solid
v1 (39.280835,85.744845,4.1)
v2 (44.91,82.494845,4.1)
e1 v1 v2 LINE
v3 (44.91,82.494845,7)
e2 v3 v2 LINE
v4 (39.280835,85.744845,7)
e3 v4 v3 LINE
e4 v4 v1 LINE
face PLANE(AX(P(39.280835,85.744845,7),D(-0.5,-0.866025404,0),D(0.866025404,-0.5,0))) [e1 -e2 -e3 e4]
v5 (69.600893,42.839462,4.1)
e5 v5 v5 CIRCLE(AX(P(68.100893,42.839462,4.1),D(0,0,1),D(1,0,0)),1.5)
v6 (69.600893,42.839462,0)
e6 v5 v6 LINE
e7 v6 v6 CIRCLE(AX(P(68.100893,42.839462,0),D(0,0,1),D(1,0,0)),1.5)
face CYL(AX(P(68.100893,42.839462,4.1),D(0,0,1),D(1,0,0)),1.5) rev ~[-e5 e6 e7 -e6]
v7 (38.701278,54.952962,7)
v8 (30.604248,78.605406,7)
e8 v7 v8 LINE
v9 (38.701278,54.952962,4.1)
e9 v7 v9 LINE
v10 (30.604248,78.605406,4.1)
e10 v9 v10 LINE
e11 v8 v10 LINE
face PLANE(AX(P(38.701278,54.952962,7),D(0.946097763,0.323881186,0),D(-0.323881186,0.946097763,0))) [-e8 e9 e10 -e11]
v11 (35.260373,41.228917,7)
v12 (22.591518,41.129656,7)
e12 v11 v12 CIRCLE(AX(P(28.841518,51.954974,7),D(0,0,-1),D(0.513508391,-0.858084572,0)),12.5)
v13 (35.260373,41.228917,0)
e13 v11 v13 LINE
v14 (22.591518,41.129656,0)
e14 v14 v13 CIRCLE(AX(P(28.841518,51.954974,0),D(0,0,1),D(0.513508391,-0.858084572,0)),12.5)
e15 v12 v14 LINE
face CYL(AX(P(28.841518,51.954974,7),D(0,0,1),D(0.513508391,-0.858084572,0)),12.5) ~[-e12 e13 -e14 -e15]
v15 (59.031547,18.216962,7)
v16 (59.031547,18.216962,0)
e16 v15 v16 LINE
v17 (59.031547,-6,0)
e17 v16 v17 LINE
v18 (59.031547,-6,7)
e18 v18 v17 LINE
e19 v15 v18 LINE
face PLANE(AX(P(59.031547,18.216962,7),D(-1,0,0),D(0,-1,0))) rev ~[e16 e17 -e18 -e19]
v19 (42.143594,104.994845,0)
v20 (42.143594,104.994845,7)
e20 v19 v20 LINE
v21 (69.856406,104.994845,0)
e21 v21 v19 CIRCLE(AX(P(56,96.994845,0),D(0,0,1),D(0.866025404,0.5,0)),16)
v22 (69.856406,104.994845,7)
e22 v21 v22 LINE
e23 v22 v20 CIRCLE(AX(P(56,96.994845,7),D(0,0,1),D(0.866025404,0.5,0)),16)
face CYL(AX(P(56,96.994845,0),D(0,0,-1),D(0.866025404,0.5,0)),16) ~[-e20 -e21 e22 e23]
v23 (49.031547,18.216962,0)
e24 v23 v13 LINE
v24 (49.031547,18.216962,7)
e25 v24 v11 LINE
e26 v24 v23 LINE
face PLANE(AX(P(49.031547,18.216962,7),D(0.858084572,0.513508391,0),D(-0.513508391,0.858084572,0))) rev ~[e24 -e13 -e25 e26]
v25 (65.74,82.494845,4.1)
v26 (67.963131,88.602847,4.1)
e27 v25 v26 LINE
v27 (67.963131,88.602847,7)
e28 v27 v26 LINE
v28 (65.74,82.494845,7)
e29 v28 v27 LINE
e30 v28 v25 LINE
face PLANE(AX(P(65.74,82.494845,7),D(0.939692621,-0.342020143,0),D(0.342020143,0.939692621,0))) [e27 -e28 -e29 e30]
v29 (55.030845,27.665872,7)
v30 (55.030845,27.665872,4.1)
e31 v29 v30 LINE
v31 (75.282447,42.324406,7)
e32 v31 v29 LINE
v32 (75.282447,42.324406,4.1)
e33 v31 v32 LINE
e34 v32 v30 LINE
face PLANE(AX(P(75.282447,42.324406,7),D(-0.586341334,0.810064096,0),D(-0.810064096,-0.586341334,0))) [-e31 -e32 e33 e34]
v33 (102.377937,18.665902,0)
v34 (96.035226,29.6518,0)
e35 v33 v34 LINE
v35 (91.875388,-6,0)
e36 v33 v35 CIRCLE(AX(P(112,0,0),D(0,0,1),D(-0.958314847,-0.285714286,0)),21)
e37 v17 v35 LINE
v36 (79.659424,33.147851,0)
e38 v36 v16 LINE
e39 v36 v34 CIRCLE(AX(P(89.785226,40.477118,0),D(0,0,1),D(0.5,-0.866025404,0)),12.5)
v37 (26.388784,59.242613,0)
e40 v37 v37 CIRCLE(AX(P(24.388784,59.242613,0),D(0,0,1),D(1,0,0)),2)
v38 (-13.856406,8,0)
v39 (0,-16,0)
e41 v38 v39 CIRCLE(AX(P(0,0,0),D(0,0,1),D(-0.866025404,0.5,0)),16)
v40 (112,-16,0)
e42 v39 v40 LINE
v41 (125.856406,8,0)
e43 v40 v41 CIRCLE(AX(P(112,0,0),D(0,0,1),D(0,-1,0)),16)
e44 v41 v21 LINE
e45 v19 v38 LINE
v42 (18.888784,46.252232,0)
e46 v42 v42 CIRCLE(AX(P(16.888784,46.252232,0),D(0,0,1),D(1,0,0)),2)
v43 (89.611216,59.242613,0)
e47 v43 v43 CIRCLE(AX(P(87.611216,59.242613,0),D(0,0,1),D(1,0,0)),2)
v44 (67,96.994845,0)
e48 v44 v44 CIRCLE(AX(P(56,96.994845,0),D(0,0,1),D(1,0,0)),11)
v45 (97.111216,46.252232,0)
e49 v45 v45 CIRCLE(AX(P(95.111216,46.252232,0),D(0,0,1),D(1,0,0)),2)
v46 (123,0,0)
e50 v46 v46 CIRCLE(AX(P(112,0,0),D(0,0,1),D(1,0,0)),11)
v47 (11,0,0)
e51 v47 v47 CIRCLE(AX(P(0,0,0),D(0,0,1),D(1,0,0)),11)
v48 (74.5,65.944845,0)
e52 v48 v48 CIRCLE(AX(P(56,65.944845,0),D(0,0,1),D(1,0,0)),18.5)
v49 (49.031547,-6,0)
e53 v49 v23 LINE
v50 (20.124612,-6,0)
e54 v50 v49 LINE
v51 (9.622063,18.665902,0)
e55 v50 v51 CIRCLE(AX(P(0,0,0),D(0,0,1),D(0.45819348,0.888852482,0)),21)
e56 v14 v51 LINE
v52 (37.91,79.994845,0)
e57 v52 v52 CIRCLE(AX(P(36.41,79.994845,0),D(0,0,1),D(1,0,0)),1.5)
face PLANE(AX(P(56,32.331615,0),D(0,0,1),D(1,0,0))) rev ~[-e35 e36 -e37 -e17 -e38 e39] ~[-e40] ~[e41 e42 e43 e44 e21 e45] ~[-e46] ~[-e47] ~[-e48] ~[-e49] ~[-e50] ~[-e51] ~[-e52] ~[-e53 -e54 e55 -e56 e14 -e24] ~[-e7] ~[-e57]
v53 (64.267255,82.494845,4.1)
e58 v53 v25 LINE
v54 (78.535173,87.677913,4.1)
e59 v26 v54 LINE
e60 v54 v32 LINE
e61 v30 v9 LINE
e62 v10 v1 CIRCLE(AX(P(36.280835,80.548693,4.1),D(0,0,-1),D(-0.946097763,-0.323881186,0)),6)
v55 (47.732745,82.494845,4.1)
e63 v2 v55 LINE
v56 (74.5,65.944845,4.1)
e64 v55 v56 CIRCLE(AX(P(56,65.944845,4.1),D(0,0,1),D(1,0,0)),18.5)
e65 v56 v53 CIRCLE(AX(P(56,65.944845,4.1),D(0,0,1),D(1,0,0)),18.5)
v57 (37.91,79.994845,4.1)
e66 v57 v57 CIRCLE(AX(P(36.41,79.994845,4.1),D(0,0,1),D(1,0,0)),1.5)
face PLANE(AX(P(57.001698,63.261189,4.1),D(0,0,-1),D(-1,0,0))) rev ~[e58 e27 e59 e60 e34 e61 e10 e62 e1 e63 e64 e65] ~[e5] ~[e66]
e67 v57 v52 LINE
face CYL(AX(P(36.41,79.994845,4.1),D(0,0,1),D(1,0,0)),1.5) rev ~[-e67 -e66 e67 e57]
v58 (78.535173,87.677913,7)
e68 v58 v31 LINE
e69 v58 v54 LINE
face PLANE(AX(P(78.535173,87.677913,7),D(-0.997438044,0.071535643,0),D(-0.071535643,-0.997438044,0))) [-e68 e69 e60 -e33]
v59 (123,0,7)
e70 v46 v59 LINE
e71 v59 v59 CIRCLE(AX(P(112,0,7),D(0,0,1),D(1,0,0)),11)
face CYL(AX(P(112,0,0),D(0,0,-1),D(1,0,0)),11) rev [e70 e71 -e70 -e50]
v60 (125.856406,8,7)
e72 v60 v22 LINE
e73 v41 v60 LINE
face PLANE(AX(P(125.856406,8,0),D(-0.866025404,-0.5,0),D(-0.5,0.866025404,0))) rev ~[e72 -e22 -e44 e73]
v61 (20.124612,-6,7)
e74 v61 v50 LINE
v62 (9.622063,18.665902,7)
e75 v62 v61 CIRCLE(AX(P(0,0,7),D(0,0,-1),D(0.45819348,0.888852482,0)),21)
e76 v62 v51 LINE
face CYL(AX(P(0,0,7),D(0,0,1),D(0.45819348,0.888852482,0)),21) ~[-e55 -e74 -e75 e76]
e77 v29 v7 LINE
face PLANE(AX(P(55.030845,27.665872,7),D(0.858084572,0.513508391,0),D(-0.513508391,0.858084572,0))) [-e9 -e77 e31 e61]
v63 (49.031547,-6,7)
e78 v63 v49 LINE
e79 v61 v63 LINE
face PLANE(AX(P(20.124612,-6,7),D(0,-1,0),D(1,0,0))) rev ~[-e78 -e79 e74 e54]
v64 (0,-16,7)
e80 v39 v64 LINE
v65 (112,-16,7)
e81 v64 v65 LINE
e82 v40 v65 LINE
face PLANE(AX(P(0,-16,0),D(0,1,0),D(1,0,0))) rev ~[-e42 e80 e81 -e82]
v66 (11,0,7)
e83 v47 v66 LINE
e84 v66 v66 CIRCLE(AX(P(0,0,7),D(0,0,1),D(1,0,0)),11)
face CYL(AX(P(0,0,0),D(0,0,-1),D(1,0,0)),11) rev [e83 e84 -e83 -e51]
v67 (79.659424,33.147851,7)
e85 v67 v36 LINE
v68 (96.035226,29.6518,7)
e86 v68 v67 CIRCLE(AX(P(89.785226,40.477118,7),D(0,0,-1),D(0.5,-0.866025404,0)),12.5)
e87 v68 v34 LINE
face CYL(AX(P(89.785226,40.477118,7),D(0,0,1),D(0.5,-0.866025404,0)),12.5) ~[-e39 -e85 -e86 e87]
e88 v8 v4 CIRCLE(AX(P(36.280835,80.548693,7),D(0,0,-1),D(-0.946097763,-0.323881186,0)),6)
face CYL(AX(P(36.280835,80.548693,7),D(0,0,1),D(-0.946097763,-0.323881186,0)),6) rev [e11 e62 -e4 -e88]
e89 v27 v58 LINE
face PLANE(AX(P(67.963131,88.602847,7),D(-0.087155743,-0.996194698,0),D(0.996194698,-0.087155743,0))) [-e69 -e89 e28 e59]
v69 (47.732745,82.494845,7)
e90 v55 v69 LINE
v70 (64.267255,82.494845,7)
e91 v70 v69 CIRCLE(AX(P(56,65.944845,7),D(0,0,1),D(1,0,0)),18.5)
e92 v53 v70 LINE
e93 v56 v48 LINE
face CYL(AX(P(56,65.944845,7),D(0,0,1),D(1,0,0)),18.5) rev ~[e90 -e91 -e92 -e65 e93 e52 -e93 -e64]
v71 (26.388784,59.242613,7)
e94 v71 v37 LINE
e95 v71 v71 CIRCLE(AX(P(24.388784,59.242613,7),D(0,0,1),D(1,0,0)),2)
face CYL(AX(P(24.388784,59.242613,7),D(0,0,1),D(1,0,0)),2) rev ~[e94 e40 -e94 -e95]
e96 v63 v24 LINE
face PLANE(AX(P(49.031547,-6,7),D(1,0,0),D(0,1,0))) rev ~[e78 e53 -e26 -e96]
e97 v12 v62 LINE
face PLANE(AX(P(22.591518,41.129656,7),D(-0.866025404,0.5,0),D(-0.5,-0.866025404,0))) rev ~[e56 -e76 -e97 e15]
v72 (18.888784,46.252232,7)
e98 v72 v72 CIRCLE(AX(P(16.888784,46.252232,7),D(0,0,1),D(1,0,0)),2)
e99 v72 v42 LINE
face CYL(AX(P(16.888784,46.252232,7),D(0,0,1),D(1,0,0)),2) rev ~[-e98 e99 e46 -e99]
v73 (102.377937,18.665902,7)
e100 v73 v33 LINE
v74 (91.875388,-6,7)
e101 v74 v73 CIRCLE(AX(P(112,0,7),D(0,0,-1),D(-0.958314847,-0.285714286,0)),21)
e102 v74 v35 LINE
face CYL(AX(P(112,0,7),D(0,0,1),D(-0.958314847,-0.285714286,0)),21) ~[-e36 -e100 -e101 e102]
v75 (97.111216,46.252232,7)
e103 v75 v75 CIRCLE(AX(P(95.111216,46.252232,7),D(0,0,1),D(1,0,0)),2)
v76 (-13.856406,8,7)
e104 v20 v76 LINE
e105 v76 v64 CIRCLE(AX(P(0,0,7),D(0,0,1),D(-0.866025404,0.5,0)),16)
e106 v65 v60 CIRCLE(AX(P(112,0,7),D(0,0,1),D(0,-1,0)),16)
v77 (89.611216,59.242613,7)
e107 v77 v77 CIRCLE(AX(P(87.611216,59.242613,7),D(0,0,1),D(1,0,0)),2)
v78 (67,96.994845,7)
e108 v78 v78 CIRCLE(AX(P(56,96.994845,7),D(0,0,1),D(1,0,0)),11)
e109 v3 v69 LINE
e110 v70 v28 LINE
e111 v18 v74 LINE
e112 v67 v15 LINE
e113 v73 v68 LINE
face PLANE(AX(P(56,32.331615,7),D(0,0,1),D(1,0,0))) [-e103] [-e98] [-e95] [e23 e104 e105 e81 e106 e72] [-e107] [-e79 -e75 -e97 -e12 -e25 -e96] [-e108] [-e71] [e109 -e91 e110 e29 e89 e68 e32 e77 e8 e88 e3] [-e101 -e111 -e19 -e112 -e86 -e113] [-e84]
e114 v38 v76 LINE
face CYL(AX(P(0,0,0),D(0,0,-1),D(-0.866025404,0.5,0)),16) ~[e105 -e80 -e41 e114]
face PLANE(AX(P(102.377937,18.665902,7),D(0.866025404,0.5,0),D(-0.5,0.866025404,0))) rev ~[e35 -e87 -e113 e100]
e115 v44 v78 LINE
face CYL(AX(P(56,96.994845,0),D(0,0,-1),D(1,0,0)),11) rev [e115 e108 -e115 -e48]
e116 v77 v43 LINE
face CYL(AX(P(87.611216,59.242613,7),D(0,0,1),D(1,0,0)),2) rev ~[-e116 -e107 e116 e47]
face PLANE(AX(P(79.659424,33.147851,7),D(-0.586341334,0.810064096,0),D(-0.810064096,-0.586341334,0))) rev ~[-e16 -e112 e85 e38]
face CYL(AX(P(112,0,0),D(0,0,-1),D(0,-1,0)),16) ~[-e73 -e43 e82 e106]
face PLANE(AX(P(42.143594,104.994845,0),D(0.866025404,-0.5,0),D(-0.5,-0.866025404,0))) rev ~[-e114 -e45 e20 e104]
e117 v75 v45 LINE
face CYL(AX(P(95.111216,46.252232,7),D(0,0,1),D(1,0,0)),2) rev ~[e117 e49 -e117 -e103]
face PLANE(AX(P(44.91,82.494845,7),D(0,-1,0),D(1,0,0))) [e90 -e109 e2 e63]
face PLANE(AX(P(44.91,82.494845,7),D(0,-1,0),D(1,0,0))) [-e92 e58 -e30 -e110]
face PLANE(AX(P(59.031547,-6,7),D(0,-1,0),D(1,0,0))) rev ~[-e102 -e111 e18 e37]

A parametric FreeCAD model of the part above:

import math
import FreeCAD as App
import Part
import Sketcher
Q = App.Units.Quantity

doc = App.newDocument("Part")
body = doc.addObject("PartDesign::Body", "Body")

sketch1 = body.newObject("Sketcher::SketchObject", "Sketch")
sketch1.AttachmentSupport = (doc.getObject("XY_Plane"), [""])
sketch1.MapMode = "FlatFace"
sketch1.addGeometry([
    Part.LineSegment(App.Vector(42.143594, 104.994845, 0), App.Vector(-13.856406, 8, 0)),
    Part.ArcOfCircle(Part.Circle(App.Vector(0, 0, 0), App.Vector(0, 0, 1), 16), math.radians(150), math.radians(270)),
    Part.LineSegment(App.Vector(0, -16, 0), App.Vector(112, -16, 0)),
    Part.ArcOfCircle(Part.Circle(App.Vector(112, 0, 0), App.Vector(0, 0, 1), 16), math.radians(-90), math.radians(30)),
    Part.LineSegment(App.Vector(125.856406, 8, 0), App.Vector(69.856406, 104.994845, 0)),
    Part.ArcOfCircle(Part.Circle(App.Vector(56, 96.994845, 0), App.Vector(0, 0, 1), 16), math.radians(30), math.radians(150)),
    Part.Circle(App.Vector(0, 0, 0), App.Vector(0, 0, 1), 11),
    Part.Circle(App.Vector(112, 0, 0), App.Vector(0, 0, 1), 11),
    Part.Circle(App.Vector(56, 96.994845, 0), App.Vector(0, 0, 1), 11),
], False)
sketch1.addConstraint([
    Sketcher.Constraint("Tangent", 0, 2, 1, 1),
    Sketcher.Constraint("Tangent", 1, 2, 2, 1),
    Sketcher.Constraint("Tangent", 2, 2, 3, 1),
    Sketcher.Constraint("Tangent", 3, 2, 4, 1),
    Sketcher.Constraint("Tangent", 4, 2, 5, 1),
    Sketcher.Constraint("Tangent", 5, 2, 0, 1),
    Sketcher.Constraint("Horizontal", 2),
    Sketcher.Constraint("Coincident", 1, 3, -1, 1),
    Sketcher.Constraint("Coincident", 6, 3, -1, 1),
    Sketcher.Constraint("Coincident", 7, 3, 3, 3),
    Sketcher.Constraint("Coincident", 8, 3, 5, 3),
    Sketcher.Constraint("Equal", 1, 3),
    Sketcher.Constraint("Equal", 3, 5),
    Sketcher.Constraint("Equal", 6, 7),
    Sketcher.Constraint("Equal", 7, 8),
    Sketcher.Constraint("Horizontal", 0, 2, 3, 2),
    Sketcher.Constraint("Diameter", 6, 22.0),
    Sketcher.Constraint("Radius", 1, 16.0),
    Sketcher.Constraint("DistanceX", 2, 1, 2, 2, 112.0),
    Sketcher.Constraint("Angle", 0, Q("-120 deg")),
])
pad1 = body.newObject("PartDesign::Pad", "Pad")
pad1.Profile = sketch1
pad1.Length = 7

sketch2 = body.newObject("Sketcher::SketchObject", "Sketch001")
sketch2.AttachmentSupport = (doc.getObject("XY_Plane"), [""])
sketch2.MapMode = "FlatFace"
sketch2.AttachmentOffset = App.Placement(App.Vector(0, 0, 7), App.Rotation())
sketch2.addGeometry(Part.Circle(App.Vector(56, 65.944845, 0), App.Vector(0, 0, 1), 18.5), False)
sketch2.addConstraint([
    Sketcher.Constraint("Diameter", 0, 37.0),
    Sketcher.Constraint("DistanceX", -1, 1, 0, 3, 56.0),
    Sketcher.Constraint("DistanceY", -1, 1, 0, 3, 65.944845),
])
pocket1 = body.newObject("PartDesign::Pocket", "Pocket")
pocket1.Profile = sketch2
pocket1.Type = "ThroughAll"

sketch3 = body.newObject("Sketcher::SketchObject", "Sketch002")
sketch3.AttachmentSupport = (doc.getObject("XY_Plane"), [""])
sketch3.MapMode = "FlatFace"
sketch3.AttachmentOffset = App.Placement(App.Vector(0, 0, 7), App.Rotation())
sketch3.addGeometry([
    Part.LineSegment(App.Vector(65.74, 82.494845, 0), App.Vector(44.91, 82.494845, 0)),
    Part.LineSegment(App.Vector(44.91, 82.494845, 0), App.Vector(39.280835, 85.744845, 0)),
    Part.ArcOfCircle(Part.Circle(App.Vector(36.280835, 80.548693, 0), App.Vector(0, 0, 1), 6), math.radians(60), math.radians(198.897806)),
    Part.LineSegment(App.Vector(30.604248, 78.605406, 0), App.Vector(38.701278, 54.952962, 0)),
    Part.LineSegment(App.Vector(38.701278, 54.952962, 0), App.Vector(55.030845, 27.665872, 0)),
    Part.LineSegment(App.Vector(55.030845, 27.665872, 0), App.Vector(75.282447, 42.324406, 0)),
    Part.LineSegment(App.Vector(75.282447, 42.324406, 0), App.Vector(78.535173, 87.677913, 0)),
    Part.LineSegment(App.Vector(78.535173, 87.677913, 0), App.Vector(67.963131, 88.602847, 0)),
    Part.LineSegment(App.Vector(67.963131, 88.602847, 0), App.Vector(65.74, 82.494845, 0)),
], False)
sketch3.addConstraint([
    Sketcher.Constraint("Coincident", 0, 2, 1, 1),
    Sketcher.Constraint("Coincident", 1, 2, 2, 1),
    Sketcher.Constraint("Coincident", 2, 2, 3, 1),
    Sketcher.Constraint("Coincident", 3, 2, 4, 1),
    Sketcher.Constraint("Coincident", 4, 2, 5, 1),
    Sketcher.Constraint("Coincident", 5, 2, 6, 1),
    Sketcher.Constraint("Coincident", 6, 2, 7, 1),
    Sketcher.Constraint("Coincident", 7, 2, 8, 1),
    Sketcher.Constraint("Coincident", 8, 2, 0, 1),
    Sketcher.Constraint("Horizontal", 0),
    Sketcher.Constraint("Radius", 2, 6.0),
    Sketcher.Constraint("Distance", 3, 25.0),
    Sketcher.Constraint("Distance", 5, 25.0),
    Sketcher.Constraint("DistanceX", 2, 3, 1, 2, 3.0),
    Sketcher.Constraint("Distance", 1, 6.5),
    Sketcher.Constraint("Distance", 4, 31.8),
    Sketcher.Constraint("Distance", 8, 6.5),
    Sketcher.Constraint("DistanceX", 0, 2, 0, 1, 20.83),
    Sketcher.Constraint("Distance", 6, 45.47),
    Sketcher.Constraint("DistanceX", -1, 1, 0, 2, 44.91),
    Sketcher.Constraint("DistanceY", 0, 2, 1, 2, 3.25),
    Sketcher.Constraint("DistanceX", -1, 1, 2, 2, 30.604248),
    Sketcher.Constraint("DistanceY", -1, 1, 3, 2, 54.952962),
    Sketcher.Constraint("DistanceX", -1, 1, 7, 2, 67.963131),
    Sketcher.Constraint("DistanceX", 2, 2, 3, 2, 8.09703),
    Sketcher.Constraint("DistanceY", 4, 2, 3, 2, 27.287089),
    Sketcher.Constraint("DistanceX", 3, 2, 5, 2, 36.581169),
    Sketcher.Constraint("DistanceY", 0, 2, 6, 2, 5.183068),
])
pocket2 = body.newObject("PartDesign::Pocket", "Pocket001")
pocket2.Profile = sketch3
pocket2.Length = 2.9

sketch4 = body.newObject("Sketcher::SketchObject", "Sketch003")
sketch4.AttachmentSupport = (doc.getObject("XY_Plane"), [""])
sketch4.MapMode = "FlatFace"
sketch4.AttachmentOffset = App.Placement(App.Vector(0, 0, 7), App.Rotation())
sketch4.addGeometry([
    Part.LineSegment(App.Vector(22.591518, 41.129656, 0), App.Vector(9.622063, 18.665902, 0)),
    Part.ArcOfCircle(Part.Circle(App.Vector(0, 0, 0), App.Vector(0, 0, 1), 21), math.radians(-16.60155), math.radians(62.729403)),
    Part.LineSegment(App.Vector(20.124612, -6, 0), App.Vector(49.031547, -6, 0)),
    Part.LineSegment(App.Vector(49.031547, -6, 0), App.Vector(49.031547, 18.216962, 0)),
    Part.LineSegment(App.Vector(49.031547, 18.216962, 0), App.Vector(35.260373, 41.228917, 0)),
    Part.ArcOfCircle(Part.Circle(App.Vector(28.841518, 51.954974, 0), App.Vector(0, 0, 1), 12.5), math.radians(-120), math.radians(-59.102194)),
    Part.LineSegment(App.Vector(59.031547, 18.216962, 0), App.Vector(59.031547, -6, 0)),
    Part.LineSegment(App.Vector(59.031547, -6, 0), App.Vector(91.875388, -6, 0)),
    Part.ArcOfCircle(Part.Circle(App.Vector(112, 0, 0), App.Vector(0, 0, 1), 21), math.radians(117.270597), math.radians(196.60155)),
    Part.LineSegment(App.Vector(102.377937, 18.665902, 0), App.Vector(96.035226, 29.6518, 0)),
    Part.ArcOfCircle(Part.Circle(App.Vector(89.785226, 40.477118, 0), App.Vector(0, 0, 1), 12.5), math.radians(-144.102194), math.radians(-60)),
    Part.LineSegment(App.Vector(79.659424, 33.147851, 0), App.Vector(59.031547, 18.216962, 0)),
], False)
sketch4.addConstraint([
    Sketcher.Constraint("Coincident", 0, 2, 1, 2),
    Sketcher.Constraint("Coincident", 1, 1, 2, 1),
    Sketcher.Constraint("Coincident", 2, 2, 3, 1),
    Sketcher.Constraint("Coincident", 3, 2, 4, 1),
    Sketcher.Constraint("Coincident", 4, 2, 5, 2),
    Sketcher.Constraint("Coincident", 5, 1, 0, 1),
    Sketcher.Constraint("Coincident", 6, 2, 7, 1),
    Sketcher.Constraint("Coincident", 7, 2, 8, 2),
    Sketcher.Constraint("Coincident", 8, 1, 9, 1),
    Sketcher.Constraint("Coincident", 9, 2, 10, 2),
    Sketcher.Constraint("Coincident", 10, 1, 11, 1),
    Sketcher.Constraint("Coincident", 11, 2, 6, 1),
    Sketcher.Constraint("Horizontal", 2),
    Sketcher.Constraint("Vertical", 3),
    Sketcher.Constraint("Vertical", 6),
    Sketcher.Constraint("Horizontal", 7),
    Sketcher.Constraint("Coincident", 1, 3, -1, 1),
    Sketcher.Constraint("Equal", 1, 8),
    Sketcher.Constraint("Equal", 5, 10),
    Sketcher.Constraint("PointOnObject", 8, 3, -1),
    Sketcher.Constraint("Horizontal", 2, 2, 6, 2),
    Sketcher.Constraint("Horizontal", 0, 2, 8, 1),
    Sketcher.Constraint("Horizontal", 3, 2, 11, 2),
    Sketcher.Constraint("Radius", 1, 21.0),
    Sketcher.Constraint("Radius", 5, 12.5),
    Sketcher.Constraint("Angle", 0, Q("-120 deg")),
    Sketcher.Constraint("Angle", 9, Q("120 deg")),
    Sketcher.Constraint("DistanceX", -1, 1, 8, 3, 112.0),
    Sketcher.Constraint("DistanceY", 1, 1, -1, 1, 6.0),
    Sketcher.Constraint("DistanceX", 2, 2, 6, 2, 10.0),
    Sketcher.Constraint("DistanceX", 5, 1, 5, 3, 6.25),
    Sketcher.Constraint("DistanceX", 10, 3, 9, 2, 6.25),
    Sketcher.Constraint("Distance", 11, 25.464501),
    Sketcher.Constraint("DistanceX", 7, 1, 7, 2, 32.843842),
    Sketcher.Constraint("DistanceY", 3, 1, 3, 2, 24.216962),
    Sketcher.Constraint("DistanceY", -1, 1, 9, 2, 29.6518),
    Sketcher.Constraint("DistanceX", 10, 1, 10, 3, 10.125801),
    Sketcher.Constraint("Distance", 0, 25.938909),
    Sketcher.Constraint("DistanceX", 0, 2, 4, 2, 25.638309),
])
pocket3 = body.newObject("PartDesign::Pocket", "Pocket002")
pocket3.Profile = sketch4
pocket3.Type = "ThroughAll"

sketch5 = body.newObject("Sketcher::SketchObject", "Sketch004")
sketch5.AttachmentSupport = (doc.getObject("XY_Plane"), [""])
sketch5.MapMode = "FlatFace"
sketch5.AttachmentOffset = App.Placement(App.Vector(0, 0, 4.1), App.Rotation())
sketch5.addGeometry([
    Part.Circle(App.Vector(68.100893, 42.839462, 0), App.Vector(0, 0, 1), 1.5),
    Part.Circle(App.Vector(36.41, 79.994845, 0), App.Vector(0, 0, 1), 1.5),
], False)
sketch5.addConstraint([
    Sketcher.Constraint("Equal", 0, 1),
    Sketcher.Constraint("Diameter", 0, 3.0),
    Sketcher.Constraint("DistanceX", -1, 1, 1, 3, 36.41),
    Sketcher.Constraint("DistanceX", -1, 1, 0, 3, 68.100893),
    Sketcher.Constraint("DistanceY", -1, 1, 0, 3, 42.839462),
    Sketcher.Constraint("DistanceY", -1, 1, 1, 3, 79.994845),
])
pocket4 = body.newObject("PartDesign::Pocket", "Pocket003")
pocket4.Profile = sketch5
pocket4.Type = "ThroughAll"

sketch6 = body.newObject("Sketcher::SketchObject", "Sketch005")
sketch6.AttachmentSupport = (doc.getObject("XY_Plane"), [""])
sketch6.MapMode = "FlatFace"
sketch6.AttachmentOffset = App.Placement(App.Vector(0, 0, 7), App.Rotation())
sketch6.addGeometry([
    Part.Circle(App.Vector(24.388784, 59.242613, 0), App.Vector(0, 0, 1), 2),
    Part.Circle(App.Vector(16.888784, 46.252232, 0), App.Vector(0, 0, 1), 2),
    Part.Circle(App.Vector(87.611216, 59.242613, 0), App.Vector(0, 0, 1), 2),
    Part.Circle(App.Vector(95.111216, 46.252232, 0), App.Vector(0, 0, 1), 2),
], False)
sketch6.addConstraint([
    Sketcher.Constraint("Equal", 0, 1),
    Sketcher.Constraint("Equal", 1, 2),
    Sketcher.Constraint("Equal", 2, 3),
    Sketcher.Constraint("Horizontal", 0, 3, 2, 3),
    Sketcher.Constraint("Horizontal", 1, 3, 3, 3),
    Sketcher.Constraint("Diameter", 0, 4.0),
    Sketcher.Constraint("DistanceX", 1, 3, 0, 3, 7.5),
    Sketcher.Constraint("DistanceX", 2, 3, 3, 3, 7.5),
    Sketcher.Constraint("DistanceY", 1, 3, 0, 3, 12.990381),
    Sketcher.Constraint("DistanceX", 0, 3, 2, 3, 63.222432),
    Sketcher.Constraint("DistanceX", -1, 1, 0, 3, 24.388784),
    Sketcher.Constraint("DistanceY", -1, 1, 0, 3, 59.242613),
])
pocket5 = body.newObject("PartDesign::Pocket", "Pocket004")
pocket5.Profile = sketch6
pocket5.Type = "ThroughAll"

doc.recompute()
